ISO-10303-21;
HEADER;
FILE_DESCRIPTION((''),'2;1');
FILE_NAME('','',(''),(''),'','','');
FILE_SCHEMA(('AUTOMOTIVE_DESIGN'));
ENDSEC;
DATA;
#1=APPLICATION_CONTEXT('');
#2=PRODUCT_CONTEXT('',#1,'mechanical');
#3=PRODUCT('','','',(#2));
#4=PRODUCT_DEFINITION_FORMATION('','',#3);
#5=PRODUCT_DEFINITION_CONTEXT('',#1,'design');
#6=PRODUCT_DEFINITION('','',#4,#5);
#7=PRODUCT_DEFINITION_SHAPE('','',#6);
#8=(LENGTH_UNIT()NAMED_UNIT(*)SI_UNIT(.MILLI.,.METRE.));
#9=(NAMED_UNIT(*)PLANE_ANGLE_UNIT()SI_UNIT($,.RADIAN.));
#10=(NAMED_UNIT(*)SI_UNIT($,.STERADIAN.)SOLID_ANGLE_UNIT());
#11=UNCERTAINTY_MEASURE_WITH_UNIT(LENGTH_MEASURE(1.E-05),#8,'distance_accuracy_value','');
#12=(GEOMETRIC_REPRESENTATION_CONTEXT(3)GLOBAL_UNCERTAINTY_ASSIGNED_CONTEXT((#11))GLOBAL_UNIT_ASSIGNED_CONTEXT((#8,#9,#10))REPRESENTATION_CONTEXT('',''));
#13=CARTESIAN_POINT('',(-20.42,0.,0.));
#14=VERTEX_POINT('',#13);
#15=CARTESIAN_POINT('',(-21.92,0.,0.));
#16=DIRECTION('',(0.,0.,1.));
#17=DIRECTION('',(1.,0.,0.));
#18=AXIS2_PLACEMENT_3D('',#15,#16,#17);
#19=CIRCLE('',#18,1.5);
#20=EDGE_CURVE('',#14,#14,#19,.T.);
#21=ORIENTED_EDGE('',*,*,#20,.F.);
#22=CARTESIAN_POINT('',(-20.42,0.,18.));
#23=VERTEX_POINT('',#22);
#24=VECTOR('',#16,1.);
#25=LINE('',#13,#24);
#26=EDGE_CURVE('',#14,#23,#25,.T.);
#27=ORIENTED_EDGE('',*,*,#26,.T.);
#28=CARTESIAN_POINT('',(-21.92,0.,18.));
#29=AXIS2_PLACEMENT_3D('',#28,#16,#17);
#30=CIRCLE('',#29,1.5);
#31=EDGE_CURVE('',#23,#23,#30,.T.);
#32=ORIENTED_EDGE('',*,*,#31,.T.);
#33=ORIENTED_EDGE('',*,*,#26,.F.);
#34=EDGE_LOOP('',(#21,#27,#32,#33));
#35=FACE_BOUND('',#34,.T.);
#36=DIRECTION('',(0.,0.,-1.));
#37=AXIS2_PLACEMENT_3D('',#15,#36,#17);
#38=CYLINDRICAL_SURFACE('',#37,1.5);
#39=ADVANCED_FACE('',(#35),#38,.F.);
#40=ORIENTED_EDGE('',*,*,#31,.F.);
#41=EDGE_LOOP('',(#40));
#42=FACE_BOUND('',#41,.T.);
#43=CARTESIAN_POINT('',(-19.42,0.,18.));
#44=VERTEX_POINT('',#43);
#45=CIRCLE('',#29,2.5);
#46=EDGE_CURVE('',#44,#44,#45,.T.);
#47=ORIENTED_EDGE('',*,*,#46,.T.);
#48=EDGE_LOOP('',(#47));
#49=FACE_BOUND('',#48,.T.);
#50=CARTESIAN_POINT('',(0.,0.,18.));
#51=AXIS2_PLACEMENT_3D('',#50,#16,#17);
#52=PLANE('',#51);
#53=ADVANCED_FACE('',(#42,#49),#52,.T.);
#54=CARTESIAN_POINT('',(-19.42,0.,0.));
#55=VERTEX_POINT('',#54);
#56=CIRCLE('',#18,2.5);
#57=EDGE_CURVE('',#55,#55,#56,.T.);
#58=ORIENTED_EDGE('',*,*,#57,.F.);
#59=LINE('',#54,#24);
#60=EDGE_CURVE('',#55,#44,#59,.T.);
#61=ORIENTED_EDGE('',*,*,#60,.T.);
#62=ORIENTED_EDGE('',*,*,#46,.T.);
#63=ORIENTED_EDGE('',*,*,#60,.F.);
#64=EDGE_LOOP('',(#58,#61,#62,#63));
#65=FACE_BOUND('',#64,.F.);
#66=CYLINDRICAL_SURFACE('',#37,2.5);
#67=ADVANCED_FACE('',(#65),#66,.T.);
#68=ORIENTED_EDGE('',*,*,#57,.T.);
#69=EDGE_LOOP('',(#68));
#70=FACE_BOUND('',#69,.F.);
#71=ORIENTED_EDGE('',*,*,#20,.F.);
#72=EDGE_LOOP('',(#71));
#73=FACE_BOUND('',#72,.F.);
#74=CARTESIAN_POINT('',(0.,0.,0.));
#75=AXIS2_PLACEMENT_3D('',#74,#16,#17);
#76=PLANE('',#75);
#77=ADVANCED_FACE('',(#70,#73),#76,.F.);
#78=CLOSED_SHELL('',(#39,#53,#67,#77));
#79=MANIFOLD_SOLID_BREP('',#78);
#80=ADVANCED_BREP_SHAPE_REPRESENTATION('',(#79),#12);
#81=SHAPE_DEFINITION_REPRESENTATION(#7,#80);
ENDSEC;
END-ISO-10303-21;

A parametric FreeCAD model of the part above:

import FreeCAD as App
import Part
import Sketcher
Q = App.Units.Quantity

doc = App.newDocument("Part")
body = doc.addObject("PartDesign::Body", "Body")

sketch1 = doc.addObject("Sketcher::SketchObject", "Sketch")
body.addObject(sketch1)
sketch1.AttachmentSupport = (doc.XY_Plane, [""])
sketch1.MapMode = "FlatFace"
sketch1.addGeometry(Part.Circle(App.Vector(-21.92, 0, 0), App.Vector(0, 0, 1), 2.5), False)
sketch1.addGeometry(Part.Circle(App.Vector(-21.92, 0, 0), App.Vector(0, 0, 1), 1.5), False)
sketch1.addConstraint(Sketcher.Constraint("Coincident", 1, 3, 0, 3))
sketch1.addConstraint(Sketcher.Constraint("PointOnObject", 0, 3, -1))
sketch1.addConstraint(Sketcher.Constraint("Diameter", 0, Q("5 mm")))
sketch1.addConstraint(Sketcher.Constraint("Diameter", 1, Q("3 mm")))
sketch1.addConstraint(Sketcher.Constraint("DistanceX", 0, 3, -1, 1, Q("21.92 mm")))
pad1 = doc.addObject("PartDesign::Pad", "Pad")
body.addObject(pad1)
pad1.Profile = sketch1
pad1.Length = 18

doc.recompute()
